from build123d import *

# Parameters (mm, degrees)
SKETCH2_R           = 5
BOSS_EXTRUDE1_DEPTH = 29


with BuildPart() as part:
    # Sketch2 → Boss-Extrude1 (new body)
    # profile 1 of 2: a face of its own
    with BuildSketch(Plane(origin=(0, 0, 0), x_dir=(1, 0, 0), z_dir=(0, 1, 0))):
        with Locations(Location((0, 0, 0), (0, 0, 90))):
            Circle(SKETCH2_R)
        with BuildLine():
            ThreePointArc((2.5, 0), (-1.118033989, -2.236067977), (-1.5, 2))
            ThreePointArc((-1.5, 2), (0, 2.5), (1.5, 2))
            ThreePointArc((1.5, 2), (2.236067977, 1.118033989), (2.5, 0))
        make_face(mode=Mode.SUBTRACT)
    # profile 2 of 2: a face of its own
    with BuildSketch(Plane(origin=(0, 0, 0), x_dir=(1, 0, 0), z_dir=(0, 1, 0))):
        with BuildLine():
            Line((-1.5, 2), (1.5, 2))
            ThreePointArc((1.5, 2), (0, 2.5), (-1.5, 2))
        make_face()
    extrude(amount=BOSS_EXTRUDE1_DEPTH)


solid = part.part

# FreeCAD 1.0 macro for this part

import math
import FreeCAD as App
import Part
import Sketcher

V = App.Vector
Q = App.Units.Quantity

doc = App.newDocument("Part")
body = doc.addObject("PartDesign::Body", "Body")

# Sketch on XZ plane
sketch1 = body.newObject("Sketcher::SketchObject", "Sketch")
sketch1.AttachmentSupport = (doc.getObject("XZ_Plane"), [""])
sketch1.MapMode = "FlatFace"
sketch1.addGeometry([
    Part.Circle(V(0, 0, 0), V(0, 0, 1), 5),
    Part.ArcOfCircle(Part.Circle(V(0, 0, 0), V(0, 0, 1), 2.5), math.radians(-53.130102), math.radians(0)),
    Part.ArcOfCircle(Part.Circle(V(0, 0, 0), V(0, 0, 1), 2.5), math.radians(0), math.radians(233.130102)),
    Part.LineSegment(V(-1.5, -2, 0), V(1.5, -2, 0)),
], False)
sketch1.addConstraint([
    Sketcher.Constraint("Tangent", 1, 2, 2, 1),
    Sketcher.Constraint("Coincident", 2, 2, 3, 1),
    Sketcher.Constraint("Coincident", 3, 2, 1, 1),
    Sketcher.Constraint("Horizontal", 3),
    Sketcher.Constraint("Coincident", 0, 3, -1, 1),
    Sketcher.Constraint("Coincident", 1, 3, -1, 1),
    Sketcher.Constraint("Equal", 1, 2),
    Sketcher.Constraint("PointOnObject", 1, 2, -1),
    Sketcher.Constraint("Diameter", 0, Q("10 mm")),
    Sketcher.Constraint("Radius", 1, Q("2.5 mm")),
    Sketcher.Constraint("DistanceX", 3, 1, 3, 2, Q("3 mm")),
])
pad1 = body.newObject("PartDesign::Pad", "Pad")
pad1.Profile = sketch1
pad1.Length = 29
pad1.Reversed = True

doc.recompute()
